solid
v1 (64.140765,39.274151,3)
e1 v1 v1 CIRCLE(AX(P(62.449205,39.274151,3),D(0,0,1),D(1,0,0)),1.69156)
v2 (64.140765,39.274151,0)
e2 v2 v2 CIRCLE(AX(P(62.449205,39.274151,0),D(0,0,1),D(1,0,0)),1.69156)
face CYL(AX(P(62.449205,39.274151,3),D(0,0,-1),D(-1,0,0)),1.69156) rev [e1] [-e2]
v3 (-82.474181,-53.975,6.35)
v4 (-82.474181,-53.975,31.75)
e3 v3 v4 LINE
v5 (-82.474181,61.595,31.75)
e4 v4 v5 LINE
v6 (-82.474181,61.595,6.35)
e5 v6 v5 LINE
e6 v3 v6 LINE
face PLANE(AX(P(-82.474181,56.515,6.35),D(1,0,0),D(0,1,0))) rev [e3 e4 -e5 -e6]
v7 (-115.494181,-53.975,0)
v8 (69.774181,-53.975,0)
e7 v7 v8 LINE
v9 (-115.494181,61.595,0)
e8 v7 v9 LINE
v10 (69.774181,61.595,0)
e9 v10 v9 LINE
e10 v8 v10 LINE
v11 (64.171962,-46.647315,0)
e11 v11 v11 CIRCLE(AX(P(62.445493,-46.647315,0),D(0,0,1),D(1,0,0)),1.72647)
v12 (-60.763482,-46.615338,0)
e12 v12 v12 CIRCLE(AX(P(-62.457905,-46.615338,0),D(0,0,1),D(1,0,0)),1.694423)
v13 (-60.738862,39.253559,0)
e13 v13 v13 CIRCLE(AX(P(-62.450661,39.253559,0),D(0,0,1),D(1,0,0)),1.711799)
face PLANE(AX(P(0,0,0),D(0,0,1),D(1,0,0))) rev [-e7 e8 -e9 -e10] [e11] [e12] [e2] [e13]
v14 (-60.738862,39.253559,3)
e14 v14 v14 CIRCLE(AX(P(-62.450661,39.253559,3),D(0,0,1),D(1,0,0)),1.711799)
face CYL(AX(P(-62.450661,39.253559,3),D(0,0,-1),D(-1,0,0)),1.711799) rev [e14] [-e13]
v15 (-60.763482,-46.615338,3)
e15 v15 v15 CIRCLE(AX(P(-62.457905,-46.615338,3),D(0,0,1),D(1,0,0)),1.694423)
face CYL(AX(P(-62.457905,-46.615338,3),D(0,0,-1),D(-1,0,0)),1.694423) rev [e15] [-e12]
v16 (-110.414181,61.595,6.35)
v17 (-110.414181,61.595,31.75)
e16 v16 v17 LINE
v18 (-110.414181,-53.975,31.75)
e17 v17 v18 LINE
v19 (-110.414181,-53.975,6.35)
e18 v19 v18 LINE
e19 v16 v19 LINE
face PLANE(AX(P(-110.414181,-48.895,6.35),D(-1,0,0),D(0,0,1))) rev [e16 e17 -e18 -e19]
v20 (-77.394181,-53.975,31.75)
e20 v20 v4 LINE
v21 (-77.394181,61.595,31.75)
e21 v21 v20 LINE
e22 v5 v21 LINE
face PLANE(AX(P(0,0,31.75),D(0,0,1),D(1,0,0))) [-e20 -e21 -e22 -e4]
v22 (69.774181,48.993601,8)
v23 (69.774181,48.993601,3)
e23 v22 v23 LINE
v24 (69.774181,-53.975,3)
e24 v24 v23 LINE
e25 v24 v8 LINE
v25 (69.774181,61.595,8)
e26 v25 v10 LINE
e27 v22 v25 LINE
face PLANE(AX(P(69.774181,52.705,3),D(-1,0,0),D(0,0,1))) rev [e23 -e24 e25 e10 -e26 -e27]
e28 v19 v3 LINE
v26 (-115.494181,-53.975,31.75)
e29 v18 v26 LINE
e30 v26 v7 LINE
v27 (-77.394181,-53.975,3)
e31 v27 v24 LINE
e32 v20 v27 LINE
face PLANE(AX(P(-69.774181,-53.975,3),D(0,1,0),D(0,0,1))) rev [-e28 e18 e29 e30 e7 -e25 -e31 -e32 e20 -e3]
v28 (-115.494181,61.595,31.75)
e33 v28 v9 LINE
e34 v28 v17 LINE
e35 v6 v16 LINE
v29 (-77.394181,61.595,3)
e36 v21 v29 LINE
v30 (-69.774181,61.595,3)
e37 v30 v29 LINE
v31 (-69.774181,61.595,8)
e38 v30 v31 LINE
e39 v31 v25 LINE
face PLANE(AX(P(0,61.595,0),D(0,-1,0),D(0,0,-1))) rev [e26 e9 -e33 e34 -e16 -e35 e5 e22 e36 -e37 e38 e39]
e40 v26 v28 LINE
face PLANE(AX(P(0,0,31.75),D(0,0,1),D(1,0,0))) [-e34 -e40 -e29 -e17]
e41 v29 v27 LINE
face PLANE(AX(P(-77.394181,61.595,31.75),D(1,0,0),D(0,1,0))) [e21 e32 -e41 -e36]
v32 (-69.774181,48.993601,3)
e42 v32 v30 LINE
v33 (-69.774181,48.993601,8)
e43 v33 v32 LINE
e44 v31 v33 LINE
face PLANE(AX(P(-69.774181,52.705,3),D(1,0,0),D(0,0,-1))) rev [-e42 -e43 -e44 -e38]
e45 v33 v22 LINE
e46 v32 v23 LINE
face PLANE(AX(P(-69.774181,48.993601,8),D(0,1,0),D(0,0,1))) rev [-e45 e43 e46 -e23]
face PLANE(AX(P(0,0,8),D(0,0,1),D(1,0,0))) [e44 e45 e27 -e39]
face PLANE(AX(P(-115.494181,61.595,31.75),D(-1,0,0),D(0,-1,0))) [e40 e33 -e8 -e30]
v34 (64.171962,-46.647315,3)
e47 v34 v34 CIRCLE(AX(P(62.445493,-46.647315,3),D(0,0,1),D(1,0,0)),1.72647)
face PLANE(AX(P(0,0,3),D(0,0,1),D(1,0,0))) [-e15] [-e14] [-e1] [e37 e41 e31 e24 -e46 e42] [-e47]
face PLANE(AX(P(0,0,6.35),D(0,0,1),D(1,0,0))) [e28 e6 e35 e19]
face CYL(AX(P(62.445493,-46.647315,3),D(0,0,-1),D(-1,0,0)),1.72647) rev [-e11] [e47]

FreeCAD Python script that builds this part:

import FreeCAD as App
import Part
import Sketcher

V = App.Vector
Q = App.Units.Quantity

doc = App.newDocument("Part")
params = doc.addObject("Spreadsheet::Sheet", "Params")
for row, (alias, value) in enumerate([
    ("sketch1_height", "4.2 in"),
    ("pad1_length", "3 mm"),
    ("pad2_length", "5 mm"),
    ("pad3_length", "0.35 in"),
    ("sketch4_width", "0.3 in"),
    ("sketch4_height", "4.55 in"),
    ("pad4_length", "3 mm"),
    ("sketch5_width", "1.5 in"),
    ("sketch5_height", "4.55 in"),
    ("pad5_length", "1.25 in"),
    ("sketch6_width", "1.1 in"),
    ("sketch6_height", "4.55 in"),
    ("pocket1_length", "1 in"),
], start=1):
    params.set(f"A{row}", alias)
    params.set(f"B{row}", "=" + value)
    params.setAlias(f"B{row}", alias)

body = doc.addObject("PartDesign::Body", "Body")

# Sketch on XY plane
sketch1 = body.newObject("Sketcher::SketchObject", "Sketch")
sketch1.AttachmentSupport = (doc.getObject("XY_Plane"), [""])
sketch1.MapMode = "FlatFace"
sketch1.addGeometry(Part.LineSegment(V(-69.774181, 52.705, 0), V(-69.774181, -53.975, 0)), False)
sketch1.addGeometry(Part.LineSegment(V(-69.774181, -53.975, 0), V(69.774181, -53.975, 0)), False)
sketch1.addGeometry(Part.LineSegment(V(69.774181, -53.975, 0), V(69.774181, 52.705, 0)), False)
sketch1.addGeometry(Part.LineSegment(V(69.774181, 52.705, 0), V(-69.774181, 52.705, 0)), False)
sketch1.addGeometry(Part.Circle(V(-62.457905, -46.615338, 0), V(0, 0, 1), 1.694423), False)
sketch1.addGeometry(Part.Circle(V(62.445493, -46.647315, 0), V(0, 0, 1), 1.72647), False)
sketch1.addGeometry(Part.Circle(V(-62.450661, 39.253559, 0), V(0, 0, 1), 1.711799), False)
sketch1.addGeometry(Part.Circle(V(62.449205, 39.274151, 0), V(0, 0, 1), 1.69156), False)
sketch1.addConstraint(Sketcher.Constraint("Coincident", 0, 2, 1, 1))
sketch1.addConstraint(Sketcher.Constraint("Coincident", 1, 2, 2, 1))
sketch1.addConstraint(Sketcher.Constraint("Coincident", 2, 2, 3, 1))
sketch1.addConstraint(Sketcher.Constraint("Coincident", 3, 2, 0, 1))
sketch1.addConstraint(Sketcher.Constraint("Vertical", 0))
sketch1.addConstraint(Sketcher.Constraint("Horizontal", 1))
sketch1.addConstraint(Sketcher.Constraint("Vertical", 2))
sketch1.addConstraint(Sketcher.Constraint("Horizontal", 3))
sketch1.addConstraint(Sketcher.Constraint("DistanceY", 0, 2, 0, 1, Q("4.2 in")))
sketch1.addConstraint(Sketcher.Constraint("Diameter", 5, Q("3.452939 mm")))
sketch1.addConstraint(Sketcher.Constraint("Diameter", 7, Q("3.38312 mm")))
sketch1.addConstraint(Sketcher.Constraint("DistanceY", 0, 2, -1, 1, Q("2.125 in")))
sketch1.addConstraint(Sketcher.Constraint("Diameter", 4, Q("3.388846 mm")))
sketch1.addConstraint(Sketcher.Constraint("Diameter", 6, Q("3.423598 mm")))
sketch1.addConstraint(Sketcher.Constraint("DistanceX", 1, 1, 1, 2, Q("139.548362 mm")))
sketch1.addConstraint(Sketcher.Constraint("DistanceY", 4, 3, -1, 1, Q("46.615338 mm")))
sketch1.addConstraint(Sketcher.Constraint("DistanceX", 6, 3, -1, 1, Q("62.450661 mm")))
sketch1.addConstraint(Sketcher.Constraint("DistanceY", -1, 1, 6, 3, Q("39.253559 mm")))
sketch1.addConstraint(Sketcher.Constraint("DistanceY", -1, 1, 7, 3, Q("39.274151 mm")))
sketch1.addConstraint(Sketcher.Constraint("DistanceX", 0, 2, -1, 1, Q("69.774181 mm")))
sketch1.addConstraint(Sketcher.Constraint("DistanceX", 5, 3, 7, 3, Q("0.003712 mm")))
sketch1.addConstraint(Sketcher.Constraint("DistanceX", 4, 3, 7, 3, Q("124.90711 mm")))
sketch1.addConstraint(Sketcher.Constraint("DistanceX", 5, 3, 1, 2, Q("7.328689 mm")))
sketch1.addConstraint(Sketcher.Constraint("DistanceY", 5, 3, -1, 1, Q("46.647315 mm")))
sketch1.setExpression("Constraints[8]", "Params.sketch1_height")
pad1 = body.newObject("PartDesign::Pad", "Pad")
pad1.Profile = sketch1
pad1.setExpression("Length", "Params.pad1_length")

# Sketch on XY plane
sketch2 = body.newObject("Sketcher::SketchObject", "Sketch001")
sketch2.AttachmentSupport = (doc.getObject("XY_Plane"), [""])
sketch2.MapMode = "FlatFace"
sketch2.AttachmentOffset = App.Placement(V(0, 0, 3), App.Rotation())
sketch2.addGeometry(Part.LineSegment(V(-69.774181, 52.705, 0), V(-69.774181, 48.993601, 0)), False)
sketch2.addGeometry(Part.LineSegment(V(-69.774181, 48.993601, 0), V(69.774181, 48.993601, 0)), False)
sketch2.addGeometry(Part.LineSegment(V(69.774181, 48.993601, 0), V(69.774181, 52.705, 0)), False)
sketch2.addGeometry(Part.LineSegment(V(69.774181, 52.705, 0), V(-69.774181, 52.705, 0)), False)
sketch2.addConstraint(Sketcher.Constraint("Coincident", 0, 2, 1, 1))
sketch2.addConstraint(Sketcher.Constraint("Coincident", 1, 2, 2, 1))
sketch2.addConstraint(Sketcher.Constraint("Coincident", 2, 2, 3, 1))
sketch2.addConstraint(Sketcher.Constraint("Coincident", 3, 2, 0, 1))
sketch2.addConstraint(Sketcher.Constraint("Vertical", 0))
sketch2.addConstraint(Sketcher.Constraint("Horizontal", 1))
sketch2.addConstraint(Sketcher.Constraint("Vertical", 2))
sketch2.addConstraint(Sketcher.Constraint("Horizontal", 3))
sketch2.addConstraint(Sketcher.Constraint("DistanceY", -1, 1, 2, 2, Q("2.075 in")))
sketch2.addConstraint(Sketcher.Constraint("DistanceY", 0, 2, 0, 1, Q("3.711399 mm")))
sketch2.addConstraint(Sketcher.Constraint("DistanceX", 1, 1, 1, 2, Q("139.548362 mm")))
sketch2.addConstraint(Sketcher.Constraint("DistanceX", 0, 2, -1, 1, Q("69.774181 mm")))
pad2 = body.newObject("PartDesign::Pad", "Pad001")
pad2.Profile = sketch2
pad2.setExpression("Length", "Params.pad2_length")

# Sketch on XZ plane
sketch3 = body.newObject("Sketcher::SketchObject", "Sketch002")
sketch3.AttachmentSupport = (doc.getObject("XZ_Plane"), [""])
sketch3.MapMode = "FlatFace"
sketch3.AttachmentOffset = App.Placement(V(0, 0, -2.075 * 25.4), App.Rotation())
sketch3.addGeometry(Part.LineSegment(V(-69.774181, 0, 0), V(-69.774181, 8, 0)), False)
sketch3.addGeometry(Part.LineSegment(V(-69.774181, 8, 0), V(69.774181, 8, 0)), False)
sketch3.addGeometry(Part.LineSegment(V(69.774181, 8, 0), V(69.774181, 0, 0)), False)
sketch3.addGeometry(Part.LineSegment(V(69.774181, 0, 0), V(-69.774181, 0, 0)), False)
sketch3.addConstraint(Sketcher.Constraint("Coincident", 0, 2, 1, 1))
sketch3.addConstraint(Sketcher.Constraint("Coincident", 1, 2, 2, 1))
sketch3.addConstraint(Sketcher.Constraint("Coincident", 2, 2, 3, 1))
sketch3.addConstraint(Sketcher.Constraint("Coincident", 3, 2, 0, 1))
sketch3.addConstraint(Sketcher.Constraint("Vertical", 0))
sketch3.addConstraint(Sketcher.Constraint("Horizontal", 1))
sketch3.addConstraint(Sketcher.Constraint("Vertical", 2))
sketch3.addConstraint(Sketcher.Constraint("Horizontal", 3))
sketch3.addConstraint(Sketcher.Constraint("Symmetric", 2, 2, 3, 2, -1, 1))
sketch3.addConstraint(Sketcher.Constraint("DistanceY", 0, 1, 0, 2, Q("8 mm")))
sketch3.addConstraint(Sketcher.Constraint("DistanceX", 1, 1, 1, 2, Q("139.548362 mm")))
pad3 = body.newObject("PartDesign::Pad", "Pad002")
pad3.Profile = sketch3
pad3.setExpression("Length", "Params.pad3_length")
pad3.Reversed = True

# Sketch on XY plane
sketch4 = body.newObject("Sketcher::SketchObject", "Sketch003")
sketch4.AttachmentSupport = (doc.getObject("XY_Plane"), [""])
sketch4.MapMode = "FlatFace"
sketch4.addGeometry(Part.LineSegment(V(-69.774181, 61.595, 0), V(-69.774181, -53.975, 0)), False)
sketch4.addGeometry(Part.LineSegment(V(-69.774181, -53.975, 0), V(-77.394181, -53.975, 0)), False)
sketch4.addGeometry(Part.LineSegment(V(-77.394181, -53.975, 0), V(-77.394181, 61.595, 0)), False)
sketch4.addGeometry(Part.LineSegment(V(-77.394181, 61.595, 0), V(-69.774181, 61.595, 0)), False)
sketch4.addConstraint(Sketcher.Constraint("Coincident", 0, 2, 1, 1))
sketch4.addConstraint(Sketcher.Constraint("Coincident", 1, 2, 2, 1))
sketch4.addConstraint(Sketcher.Constraint("Coincident", 2, 2, 3, 1))
sketch4.addConstraint(Sketcher.Constraint("Coincident", 3, 2, 0, 1))
sketch4.addConstraint(Sketcher.Constraint("Vertical", 0))
sketch4.addConstraint(Sketcher.Constraint("Horizontal", 1))
sketch4.addConstraint(Sketcher.Constraint("Vertical", 2))
sketch4.addConstraint(Sketcher.Constraint("Horizontal", 3))
sketch4.addConstraint(Sketcher.Constraint("DistanceX", 1, 2, 1, 1, Q("0.3 in")))
sketch4.addConstraint(Sketcher.Constraint("DistanceY", 0, 2, 0, 1, Q("4.55 in")))
sketch4.addConstraint(Sketcher.Constraint("DistanceY", 0, 2, -1, 1, Q("2.125 in")))
sketch4.addConstraint(Sketcher.Constraint("DistanceX", 0, 2, -1, 1, Q("69.774181 mm")))
sketch4.setExpression("Constraints[8]", "Params.sketch4_width")
sketch4.setExpression("Constraints[9]", "Params.sketch4_height")
pad4 = body.newObject("PartDesign::Pad", "Pad003")
pad4.Profile = sketch4
pad4.setExpression("Length", "Params.pad4_length")

# Sketch on XY plane
sketch5 = body.newObject("Sketcher::SketchObject", "Sketch004")
sketch5.AttachmentSupport = (doc.getObject("XY_Plane"), [""])
sketch5.MapMode = "FlatFace"
sketch5.addGeometry(Part.LineSegment(V(-77.394181, 61.595, 0), V(-77.394181, -53.975, 0)), False)
sketch5.addGeometry(Part.LineSegment(V(-77.394181, -53.975, 0), V(-115.494181, -53.975, 0)), False)
sketch5.addGeometry(Part.LineSegment(V(-115.494181, -53.975, 0), V(-115.494181, 61.595, 0)), False)
sketch5.addGeometry(Part.LineSegment(V(-115.494181, 61.595, 0), V(-77.394181, 61.595, 0)), False)
sketch5.addConstraint(Sketcher.Constraint("Coincident", 0, 2, 1, 1))
sketch5.addConstraint(Sketcher.Constraint("Coincident", 1, 2, 2, 1))
sketch5.addConstraint(Sketcher.Constraint("Coincident", 2, 2, 3, 1))
sketch5.addConstraint(Sketcher.Constraint("Coincident", 3, 2, 0, 1))
sketch5.addConstraint(Sketcher.Constraint("Vertical", 0))
sketch5.addConstraint(Sketcher.Constraint("Horizontal", 1))
sketch5.addConstraint(Sketcher.Constraint("Vertical", 2))
sketch5.addConstraint(Sketcher.Constraint("Horizontal", 3))
sketch5.addConstraint(Sketcher.Constraint("DistanceX", 1, 2, 1, 1, Q("1.5 in")))
sketch5.addConstraint(Sketcher.Constraint("DistanceY", 0, 2, 0, 1, Q("4.55 in")))
sketch5.addConstraint(Sketcher.Constraint("DistanceY", 0, 2, -1, 1, Q("2.125 in")))
sketch5.addConstraint(Sketcher.Constraint("DistanceX", 0, 2, -1, 1, Q("77.394181 mm")))
sketch5.setExpression("Constraints[8]", "Params.sketch5_width")
sketch5.setExpression("Constraints[9]", "Params.sketch5_height")
pad5 = body.newObject("PartDesign::Pad", "Pad004")
pad5.Profile = sketch5
pad5.setExpression("Length", "Params.pad5_length")

# Sketch on XY plane
sketch6 = body.newObject("Sketcher::SketchObject", "Sketch005")
sketch6.AttachmentSupport = (doc.getObject("XY_Plane"), [""])
sketch6.MapMode = "FlatFace"
sketch6.AttachmentOffset = App.Placement(V(0, 0, 1.25 * 25.4), App.Rotation())
sketch6.addGeometry(Part.LineSegment(V(-110.414181, -53.975, 0), V(-82.474181, -53.975, 0)), False)
sketch6.addGeometry(Part.LineSegment(V(-82.474181, -53.975, 0), V(-82.474181, 61.595, 0)), False)
sketch6.addGeometry(Part.LineSegment(V(-82.474181, 61.595, 0), V(-110.414181, 61.595, 0)), False)
sketch6.addGeometry(Part.LineSegment(V(-110.414181, 61.595, 0), V(-110.414181, -53.975, 0)), False)
sketch6.addConstraint(Sketcher.Constraint("Coincident", 0, 2, 1, 1))
sketch6.addConstraint(Sketcher.Constraint("Coincident", 1, 2, 2, 1))
sketch6.addConstraint(Sketcher.Constraint("Coincident", 2, 2, 3, 1))
sketch6.addConstraint(Sketcher.Constraint("Coincident", 3, 2, 0, 1))
sketch6.addConstraint(Sketcher.Constraint("Horizontal", 0))
sketch6.addConstraint(Sketcher.Constraint("Vertical", 1))
sketch6.addConstraint(Sketcher.Constraint("Horizontal", 2))
sketch6.addConstraint(Sketcher.Constraint("Vertical", 3))
sketch6.addConstraint(Sketcher.Constraint("DistanceX", 0, 1, 0, 2, Q("1.1 in")))
sketch6.addConstraint(Sketcher.Constraint("DistanceY", 1, 1, 1, 2, Q("4.55 in")))
sketch6.addConstraint(Sketcher.Constraint("DistanceY", 0, 2, -1, 1, Q("2.125 in")))
sketch6.addConstraint(Sketcher.Constraint("DistanceX", 0, 2, -1, 1, Q("82.474181 mm")))
sketch6.setExpression("Constraints[8]", "Params.sketch6_width")
sketch6.setExpression("Constraints[9]", "Params.sketch6_height")
pocket1 = body.newObject("PartDesign::Pocket", "Pocket")
pocket1.Profile = sketch6
pocket1.setExpression("Length", "Params.pocket1_length")

doc.recompute()
